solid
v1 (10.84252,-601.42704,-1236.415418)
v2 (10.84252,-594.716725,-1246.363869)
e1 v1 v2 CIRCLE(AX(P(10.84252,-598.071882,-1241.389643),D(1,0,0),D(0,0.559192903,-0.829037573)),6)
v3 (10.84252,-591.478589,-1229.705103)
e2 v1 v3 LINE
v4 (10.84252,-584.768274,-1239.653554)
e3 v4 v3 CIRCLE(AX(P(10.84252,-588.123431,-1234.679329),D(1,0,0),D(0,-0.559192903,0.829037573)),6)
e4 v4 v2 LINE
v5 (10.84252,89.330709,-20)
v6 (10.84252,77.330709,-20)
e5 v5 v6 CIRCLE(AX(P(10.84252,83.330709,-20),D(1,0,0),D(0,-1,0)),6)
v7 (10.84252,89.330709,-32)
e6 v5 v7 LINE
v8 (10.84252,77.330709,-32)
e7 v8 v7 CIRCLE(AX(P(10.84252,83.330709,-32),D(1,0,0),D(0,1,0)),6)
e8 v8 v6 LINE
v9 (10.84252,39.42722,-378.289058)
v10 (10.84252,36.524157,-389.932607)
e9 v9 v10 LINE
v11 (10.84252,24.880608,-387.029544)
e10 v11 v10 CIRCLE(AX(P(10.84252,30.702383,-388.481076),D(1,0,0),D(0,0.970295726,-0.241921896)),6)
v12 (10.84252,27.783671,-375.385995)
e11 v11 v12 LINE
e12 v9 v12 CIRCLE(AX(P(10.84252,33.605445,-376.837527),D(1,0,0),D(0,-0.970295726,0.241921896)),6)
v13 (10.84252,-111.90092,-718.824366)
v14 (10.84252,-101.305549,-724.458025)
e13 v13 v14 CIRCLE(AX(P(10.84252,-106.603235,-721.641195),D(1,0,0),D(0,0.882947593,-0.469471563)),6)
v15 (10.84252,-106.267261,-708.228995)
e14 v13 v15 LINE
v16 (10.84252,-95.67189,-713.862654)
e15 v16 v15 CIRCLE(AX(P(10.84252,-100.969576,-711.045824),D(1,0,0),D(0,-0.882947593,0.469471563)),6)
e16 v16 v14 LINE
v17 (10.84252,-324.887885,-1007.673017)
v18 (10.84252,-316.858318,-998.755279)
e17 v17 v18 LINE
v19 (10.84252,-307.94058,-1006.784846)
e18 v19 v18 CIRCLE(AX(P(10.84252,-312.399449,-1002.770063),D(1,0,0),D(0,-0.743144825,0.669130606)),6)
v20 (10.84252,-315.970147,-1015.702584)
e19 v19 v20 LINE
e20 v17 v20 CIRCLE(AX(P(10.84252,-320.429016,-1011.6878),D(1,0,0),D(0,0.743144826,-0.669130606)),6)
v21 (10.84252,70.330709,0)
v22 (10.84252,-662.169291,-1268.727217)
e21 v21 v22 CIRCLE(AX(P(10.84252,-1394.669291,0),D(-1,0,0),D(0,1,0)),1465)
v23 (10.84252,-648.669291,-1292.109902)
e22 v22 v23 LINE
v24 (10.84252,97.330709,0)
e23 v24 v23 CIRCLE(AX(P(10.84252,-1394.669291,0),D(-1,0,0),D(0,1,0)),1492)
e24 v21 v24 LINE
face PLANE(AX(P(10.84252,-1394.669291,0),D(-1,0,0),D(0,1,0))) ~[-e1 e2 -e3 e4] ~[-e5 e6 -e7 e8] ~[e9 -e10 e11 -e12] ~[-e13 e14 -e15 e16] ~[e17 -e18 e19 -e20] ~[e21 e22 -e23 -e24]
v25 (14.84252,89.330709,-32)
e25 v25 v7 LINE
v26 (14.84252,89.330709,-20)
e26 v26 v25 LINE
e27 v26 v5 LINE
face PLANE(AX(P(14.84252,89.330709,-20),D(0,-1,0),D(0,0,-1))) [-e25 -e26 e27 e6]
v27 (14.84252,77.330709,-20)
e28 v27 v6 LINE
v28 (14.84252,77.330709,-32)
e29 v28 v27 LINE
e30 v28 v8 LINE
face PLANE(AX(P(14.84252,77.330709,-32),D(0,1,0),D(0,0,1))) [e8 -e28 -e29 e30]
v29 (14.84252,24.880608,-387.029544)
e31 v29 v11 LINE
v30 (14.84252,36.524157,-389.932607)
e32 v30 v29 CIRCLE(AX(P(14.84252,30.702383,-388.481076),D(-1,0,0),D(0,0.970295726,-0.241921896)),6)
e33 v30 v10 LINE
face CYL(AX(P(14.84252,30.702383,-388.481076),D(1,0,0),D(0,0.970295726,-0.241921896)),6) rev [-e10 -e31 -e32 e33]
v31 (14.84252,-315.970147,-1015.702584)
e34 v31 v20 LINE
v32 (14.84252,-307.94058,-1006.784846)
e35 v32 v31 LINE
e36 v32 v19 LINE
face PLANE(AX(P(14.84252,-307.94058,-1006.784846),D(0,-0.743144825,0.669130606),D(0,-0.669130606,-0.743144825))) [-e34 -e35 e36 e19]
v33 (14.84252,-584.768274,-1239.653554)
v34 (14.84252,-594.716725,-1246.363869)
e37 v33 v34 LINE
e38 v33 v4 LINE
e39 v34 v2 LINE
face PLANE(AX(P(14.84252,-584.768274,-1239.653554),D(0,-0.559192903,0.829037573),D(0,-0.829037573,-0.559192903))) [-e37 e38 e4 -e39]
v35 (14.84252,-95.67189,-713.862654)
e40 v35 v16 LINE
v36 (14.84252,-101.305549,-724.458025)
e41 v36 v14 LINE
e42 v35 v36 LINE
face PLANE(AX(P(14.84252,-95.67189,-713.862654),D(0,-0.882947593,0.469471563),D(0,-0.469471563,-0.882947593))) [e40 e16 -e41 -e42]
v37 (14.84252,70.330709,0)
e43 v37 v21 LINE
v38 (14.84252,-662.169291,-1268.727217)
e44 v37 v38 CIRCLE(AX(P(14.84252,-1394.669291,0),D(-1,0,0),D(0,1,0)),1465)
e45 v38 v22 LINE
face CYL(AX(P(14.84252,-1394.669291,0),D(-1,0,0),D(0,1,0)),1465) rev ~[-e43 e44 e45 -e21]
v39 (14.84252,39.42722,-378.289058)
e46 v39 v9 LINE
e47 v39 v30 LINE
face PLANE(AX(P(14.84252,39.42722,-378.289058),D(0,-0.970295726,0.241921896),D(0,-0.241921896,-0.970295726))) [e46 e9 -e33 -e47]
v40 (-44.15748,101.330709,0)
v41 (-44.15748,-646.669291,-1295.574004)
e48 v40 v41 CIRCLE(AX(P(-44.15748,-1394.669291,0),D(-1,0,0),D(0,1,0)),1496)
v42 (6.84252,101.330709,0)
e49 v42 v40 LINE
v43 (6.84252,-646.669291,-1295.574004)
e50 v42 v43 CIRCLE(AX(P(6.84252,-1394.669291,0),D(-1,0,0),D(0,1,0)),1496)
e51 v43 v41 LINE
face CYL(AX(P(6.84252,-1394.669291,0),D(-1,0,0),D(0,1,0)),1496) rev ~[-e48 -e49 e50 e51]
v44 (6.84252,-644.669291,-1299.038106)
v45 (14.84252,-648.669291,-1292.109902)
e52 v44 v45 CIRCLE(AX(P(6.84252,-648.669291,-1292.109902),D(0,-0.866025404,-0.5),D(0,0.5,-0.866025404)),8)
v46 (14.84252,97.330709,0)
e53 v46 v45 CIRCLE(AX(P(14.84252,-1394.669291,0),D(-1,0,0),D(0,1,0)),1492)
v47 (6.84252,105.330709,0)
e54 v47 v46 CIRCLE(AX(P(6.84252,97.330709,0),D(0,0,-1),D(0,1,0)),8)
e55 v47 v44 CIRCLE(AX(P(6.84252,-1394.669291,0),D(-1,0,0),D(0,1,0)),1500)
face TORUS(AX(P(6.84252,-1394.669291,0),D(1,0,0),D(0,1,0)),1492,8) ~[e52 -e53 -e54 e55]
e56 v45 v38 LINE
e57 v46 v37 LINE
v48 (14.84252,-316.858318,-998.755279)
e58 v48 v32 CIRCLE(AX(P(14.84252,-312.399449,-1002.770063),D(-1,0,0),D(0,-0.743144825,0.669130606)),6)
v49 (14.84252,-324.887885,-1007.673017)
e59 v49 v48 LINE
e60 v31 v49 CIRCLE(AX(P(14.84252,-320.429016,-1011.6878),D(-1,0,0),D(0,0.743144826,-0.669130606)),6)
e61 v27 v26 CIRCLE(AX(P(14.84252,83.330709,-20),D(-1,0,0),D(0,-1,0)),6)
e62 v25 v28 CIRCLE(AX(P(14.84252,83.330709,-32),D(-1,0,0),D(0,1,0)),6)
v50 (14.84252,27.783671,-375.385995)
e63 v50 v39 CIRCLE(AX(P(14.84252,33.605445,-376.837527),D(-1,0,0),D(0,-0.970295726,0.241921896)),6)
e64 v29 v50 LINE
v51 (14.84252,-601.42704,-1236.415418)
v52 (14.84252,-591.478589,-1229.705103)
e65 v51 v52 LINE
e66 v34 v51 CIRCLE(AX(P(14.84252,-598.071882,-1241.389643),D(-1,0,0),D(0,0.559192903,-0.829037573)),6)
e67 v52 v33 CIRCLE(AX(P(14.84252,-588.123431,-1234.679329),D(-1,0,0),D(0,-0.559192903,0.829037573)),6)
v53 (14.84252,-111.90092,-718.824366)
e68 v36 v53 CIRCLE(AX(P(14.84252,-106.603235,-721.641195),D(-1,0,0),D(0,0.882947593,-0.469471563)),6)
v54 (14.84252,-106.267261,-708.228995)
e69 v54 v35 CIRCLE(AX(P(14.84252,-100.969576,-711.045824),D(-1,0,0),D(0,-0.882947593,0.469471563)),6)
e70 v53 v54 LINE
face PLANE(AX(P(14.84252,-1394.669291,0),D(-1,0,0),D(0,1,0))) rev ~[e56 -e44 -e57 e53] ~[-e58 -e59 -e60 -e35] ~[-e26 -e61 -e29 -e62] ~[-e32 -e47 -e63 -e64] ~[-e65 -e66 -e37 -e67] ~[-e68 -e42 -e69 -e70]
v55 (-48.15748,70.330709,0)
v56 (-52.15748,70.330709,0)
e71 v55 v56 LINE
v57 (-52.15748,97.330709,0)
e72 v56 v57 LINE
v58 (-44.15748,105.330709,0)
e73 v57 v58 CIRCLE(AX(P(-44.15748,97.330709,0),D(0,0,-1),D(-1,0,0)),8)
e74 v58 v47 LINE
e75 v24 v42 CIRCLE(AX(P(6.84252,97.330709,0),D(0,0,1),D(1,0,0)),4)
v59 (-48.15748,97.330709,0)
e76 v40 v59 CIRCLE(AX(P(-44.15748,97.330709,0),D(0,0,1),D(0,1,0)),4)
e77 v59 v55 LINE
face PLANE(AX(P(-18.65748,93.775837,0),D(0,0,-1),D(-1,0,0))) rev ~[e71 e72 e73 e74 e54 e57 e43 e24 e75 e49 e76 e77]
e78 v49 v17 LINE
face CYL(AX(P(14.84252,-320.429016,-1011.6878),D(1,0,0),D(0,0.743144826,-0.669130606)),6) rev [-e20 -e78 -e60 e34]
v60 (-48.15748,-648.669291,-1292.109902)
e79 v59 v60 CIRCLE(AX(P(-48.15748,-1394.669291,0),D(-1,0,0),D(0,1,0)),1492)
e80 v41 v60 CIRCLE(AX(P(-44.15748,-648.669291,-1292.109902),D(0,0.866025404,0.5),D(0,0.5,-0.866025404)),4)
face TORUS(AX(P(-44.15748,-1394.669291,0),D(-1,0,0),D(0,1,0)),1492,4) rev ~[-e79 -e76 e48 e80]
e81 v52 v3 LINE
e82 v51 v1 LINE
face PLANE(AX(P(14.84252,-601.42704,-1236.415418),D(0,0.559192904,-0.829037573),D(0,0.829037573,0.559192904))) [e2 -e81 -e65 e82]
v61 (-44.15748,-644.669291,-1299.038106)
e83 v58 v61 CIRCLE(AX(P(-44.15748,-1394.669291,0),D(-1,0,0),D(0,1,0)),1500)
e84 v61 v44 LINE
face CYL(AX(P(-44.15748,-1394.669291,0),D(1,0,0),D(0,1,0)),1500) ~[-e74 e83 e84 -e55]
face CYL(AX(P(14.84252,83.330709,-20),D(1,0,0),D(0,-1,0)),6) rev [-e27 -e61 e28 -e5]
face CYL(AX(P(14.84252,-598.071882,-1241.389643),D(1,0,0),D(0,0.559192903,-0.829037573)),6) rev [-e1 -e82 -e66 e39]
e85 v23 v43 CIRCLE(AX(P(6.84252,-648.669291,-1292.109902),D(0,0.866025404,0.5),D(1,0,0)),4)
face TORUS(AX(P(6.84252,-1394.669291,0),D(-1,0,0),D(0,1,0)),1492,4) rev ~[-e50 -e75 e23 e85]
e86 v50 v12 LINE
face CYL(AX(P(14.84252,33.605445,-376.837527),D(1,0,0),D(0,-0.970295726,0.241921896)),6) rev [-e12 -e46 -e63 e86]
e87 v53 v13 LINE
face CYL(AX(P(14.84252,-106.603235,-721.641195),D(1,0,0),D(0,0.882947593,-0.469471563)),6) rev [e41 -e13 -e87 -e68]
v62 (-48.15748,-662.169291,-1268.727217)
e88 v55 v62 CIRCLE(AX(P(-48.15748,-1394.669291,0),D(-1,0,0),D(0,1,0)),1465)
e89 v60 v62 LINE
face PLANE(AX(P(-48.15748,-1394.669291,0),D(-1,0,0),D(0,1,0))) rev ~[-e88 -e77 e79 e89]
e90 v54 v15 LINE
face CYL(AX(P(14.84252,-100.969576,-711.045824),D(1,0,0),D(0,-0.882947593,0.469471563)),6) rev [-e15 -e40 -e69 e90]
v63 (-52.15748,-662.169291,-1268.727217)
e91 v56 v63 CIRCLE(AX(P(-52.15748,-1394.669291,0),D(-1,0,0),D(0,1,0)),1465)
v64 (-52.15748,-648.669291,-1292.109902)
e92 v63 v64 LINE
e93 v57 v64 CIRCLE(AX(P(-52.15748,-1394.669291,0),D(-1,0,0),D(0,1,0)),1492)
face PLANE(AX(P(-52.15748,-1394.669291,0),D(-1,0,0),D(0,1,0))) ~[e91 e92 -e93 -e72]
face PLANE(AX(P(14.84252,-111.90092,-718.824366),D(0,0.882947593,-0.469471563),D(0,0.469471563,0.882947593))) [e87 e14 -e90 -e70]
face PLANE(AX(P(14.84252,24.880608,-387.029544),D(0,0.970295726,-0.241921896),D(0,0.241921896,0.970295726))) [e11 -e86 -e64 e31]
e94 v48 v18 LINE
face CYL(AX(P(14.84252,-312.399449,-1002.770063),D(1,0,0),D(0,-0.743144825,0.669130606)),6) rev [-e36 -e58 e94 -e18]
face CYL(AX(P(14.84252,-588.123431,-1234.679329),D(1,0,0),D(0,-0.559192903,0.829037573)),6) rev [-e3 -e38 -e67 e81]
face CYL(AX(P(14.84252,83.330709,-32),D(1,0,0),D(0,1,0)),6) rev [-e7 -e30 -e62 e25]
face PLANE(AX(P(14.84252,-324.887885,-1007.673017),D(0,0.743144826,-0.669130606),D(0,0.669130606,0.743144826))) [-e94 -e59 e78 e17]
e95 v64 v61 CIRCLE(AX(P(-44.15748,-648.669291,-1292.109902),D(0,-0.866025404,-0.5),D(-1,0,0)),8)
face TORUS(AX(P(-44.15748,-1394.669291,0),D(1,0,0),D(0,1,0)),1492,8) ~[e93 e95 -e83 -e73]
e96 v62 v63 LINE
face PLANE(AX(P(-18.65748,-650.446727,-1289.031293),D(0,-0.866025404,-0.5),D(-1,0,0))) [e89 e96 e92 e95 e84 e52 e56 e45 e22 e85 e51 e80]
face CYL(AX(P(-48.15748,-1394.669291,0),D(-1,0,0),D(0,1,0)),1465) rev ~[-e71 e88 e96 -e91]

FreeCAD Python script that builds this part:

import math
import FreeCAD as App
import Part
import Sketcher
from FreeCAD import Vector
Q = App.Units.Quantity

doc = App.newDocument("Part")
params = doc.addObject("Spreadsheet::Sheet", "Params")
for row, (alias, value) in enumerate([
    ("sketch1_radius", "8 mm"),
    ("sketch1_radius2", "4 mm"),
    ("sketch1_width", "51 mm"),
    ("sketch1_height", "27 mm"),
    ("revolution_angle", "60 deg"),
    ("sketch2_radius", "6 mm"),
    ("sketch2_height", "12 mm"),
    ("sketch2_length", "12 mm"),
    ("pocket1_length", "10 mm"),
], start=1):
    params.set(f"A{row}", alias)
    params.set(f"B{row}", "=" + value)
    params.setAlias(f"B{row}", alias)

body = doc.addObject("PartDesign::Body", "Body")

sketch1 = body.newObject("Sketcher::SketchObject", "Sketch")
sketch1.AttachmentSupport = (doc.getObject("XY_Plane"), [""])
sketch1.MapMode = "FlatFace"
sketch1.addGeometry(Part.ArcOfCircle(Part.Circle(Vector(-44.2, 97.3, 0), Vector(0, 0, 1), 8), math.radians(90), math.radians(180)), False)
sketch1.addGeometry(Part.LineSegment(Vector(-52.2, 97.3, 0), Vector(-52.2, 70.3, 0)), False)
sketch1.addGeometry(Part.LineSegment(Vector(-52.2, 70.3, 0), Vector(-48.2, 70.3, 0)), False)
sketch1.addGeometry(Part.LineSegment(Vector(-48.2, 70.3, 0), Vector(-48.2, 97.3, 0)), False)
sketch1.addGeometry(Part.ArcOfCircle(Part.Circle(Vector(-44.2, 97.3, 0), Vector(0, 0, 1), 4), math.radians(90), math.radians(180)), False)
sketch1.addGeometry(Part.LineSegment(Vector(-44.2, 101.3, 0), Vector(6.8, 101.3, 0)), False)
sketch1.addGeometry(Part.ArcOfCircle(Part.Circle(Vector(6.8, 97.3, 0), Vector(0, 0, 1), 4), math.radians(0), math.radians(90)), False)
sketch1.addGeometry(Part.LineSegment(Vector(10.8, 97.3, 0), Vector(10.8, 70.3, 0)), False)
sketch1.addGeometry(Part.LineSegment(Vector(10.8, 70.3, 0), Vector(14.8, 70.3, 0)), False)
sketch1.addGeometry(Part.LineSegment(Vector(14.8, 70.3, 0), Vector(14.8, 97.3, 0)), False)
sketch1.addGeometry(Part.ArcOfCircle(Part.Circle(Vector(6.8, 97.3, 0), Vector(0, 0, 1), 8), math.radians(0), math.radians(90)), False)
sketch1.addGeometry(Part.LineSegment(Vector(6.8, 105.3, 0), Vector(-44.2, 105.3, 0)), False)
sketch1.addGeometry(Part.LineSegment(Vector(14.8, -1394.7, 0), Vector(-52.2, -1394.7, 0)), True)
sketch1.addConstraint(Sketcher.Constraint("Tangent", 0, 2, 1, 1))
sketch1.addConstraint(Sketcher.Constraint("Coincident", 1, 2, 2, 1))
sketch1.addConstraint(Sketcher.Constraint("Coincident", 2, 2, 3, 1))
sketch1.addConstraint(Sketcher.Constraint("Tangent", 3, 2, 4, 2))
sketch1.addConstraint(Sketcher.Constraint("Tangent", 4, 1, 5, 1))
sketch1.addConstraint(Sketcher.Constraint("Tangent", 5, 2, 6, 2))
sketch1.addConstraint(Sketcher.Constraint("Tangent", 6, 1, 7, 1))
sketch1.addConstraint(Sketcher.Constraint("Coincident", 7, 2, 8, 1))
sketch1.addConstraint(Sketcher.Constraint("Coincident", 8, 2, 9, 1))
sketch1.addConstraint(Sketcher.Constraint("Tangent", 9, 2, 10, 1))
sketch1.addConstraint(Sketcher.Constraint("Tangent", 10, 2, 11, 1))
sketch1.addConstraint(Sketcher.Constraint("Tangent", 11, 2, 0, 1))
sketch1.addConstraint(Sketcher.Constraint("Vertical", 1))
sketch1.addConstraint(Sketcher.Constraint("Horizontal", 2))
sketch1.addConstraint(Sketcher.Constraint("Vertical", 3))
sketch1.addConstraint(Sketcher.Constraint("Horizontal", 5))
sketch1.addConstraint(Sketcher.Constraint("Vertical", 7))
sketch1.addConstraint(Sketcher.Constraint("Horizontal", 8))
sketch1.addConstraint(Sketcher.Constraint("Vertical", 9))
sketch1.addConstraint(Sketcher.Constraint("Horizontal", 11))
sketch1.addConstraint(Sketcher.Constraint("Horizontal", 12))
sketch1.addConstraint(Sketcher.Constraint("Coincident", 4, 3, 0, 3))
sketch1.addConstraint(Sketcher.Constraint("Coincident", 10, 3, 6, 3))
sketch1.addConstraint(Sketcher.Constraint("Equal", 4, 6))
sketch1.addConstraint(Sketcher.Constraint("Horizontal", 2, 2, 7, 2))
sketch1.addConstraint(Sketcher.Constraint("Vertical", 9, 2, 12, 1))
sketch1.addConstraint(Sketcher.Constraint("Vertical", 1, 2, 12, 2))
sketch1.addConstraint(Sketcher.Constraint("Radius", 0, Q("8 mm")))
sketch1.addConstraint(Sketcher.Constraint("Radius", 4, Q("4 mm")))
sketch1.addConstraint(Sketcher.Constraint("DistanceX", 5, 1, 5, 2, Q("51 mm")))
sketch1.addConstraint(Sketcher.Constraint("DistanceY", 1, 2, 1, 1, Q("27 mm")))
sketch1.addConstraint(Sketcher.Constraint("DistanceY", 12, 1, 8, 2, Q("1465 mm")))
sketch1.addConstraint(Sketcher.Constraint("DistanceX", 0, 3, -1, 1, Q("44.15748 mm")))
sketch1.addConstraint(Sketcher.Constraint("DistanceY", -1, 1, 0, 3, Q("97.330709 mm")))
sketch1.setExpression("Constraints[27]", "Params.sketch1_radius")
sketch1.setExpression("Constraints[28]", "Params.sketch1_radius2")
sketch1.setExpression("Constraints[29]", "Params.sketch1_width")
sketch1.setExpression("Constraints[30]", "Params.sketch1_height")
revolution = body.newObject("PartDesign::Revolution", "Revolution")
revolution.Profile = sketch1
revolution.ReferenceAxis = (sketch1, ["Axis0"])
revolution.setExpression("Angle", "Params.revolution_angle")

sketch2 = body.newObject("Sketcher::SketchObject", "Sketch001")
sketch2.AttachmentSupport = (doc.getObject("YZ_Plane"), [""])
sketch2.MapMode = "FlatFace"
sketch2.AttachmentOffset = App.Placement(Vector(0, 0, 14.84252), App.Rotation())
sketch2.addGeometry(Part.LineSegment(Vector(89, -32, 0), Vector(89, -20, 0)), False)
sketch2.addGeometry(Part.ArcOfCircle(Part.Circle(Vector(83, -20, 0), Vector(0, 0, 1), 6), math.radians(0), math.radians(180)), False)
sketch2.addGeometry(Part.LineSegment(Vector(77, -20, 0), Vector(77, -32, 0)), False)
sketch2.addGeometry(Part.ArcOfCircle(Part.Circle(Vector(83, -32, 0), Vector(0, 0, 1), 6), math.radians(180), math.radians(360)), False)
sketch2.addGeometry(Part.LineSegment(Vector(37, -390, 0), Vector(39, -378, 0)), False)
sketch2.addGeometry(Part.ArcOfCircle(Part.Circle(Vector(34, -377, 0), Vector(0, 0, 1), 6), math.radians(-14), math.radians(166)), False)
sketch2.addGeometry(Part.LineSegment(Vector(28, -375, 0), Vector(25, -387, 0)), False)
sketch2.addGeometry(Part.ArcOfCircle(Part.Circle(Vector(31, -388, 0), Vector(0, 0, 1), 6), math.radians(166), math.radians(346)), False)
sketch2.addGeometry(Part.LineSegment(Vector(-101, -724, 0), Vector(-96, -714, 0)), False)
sketch2.addGeometry(Part.ArcOfCircle(Part.Circle(Vector(-101, -711, 0), Vector(0, 0, 1), 6), math.radians(-28), math.radians(152)), False)
sketch2.addGeometry(Part.LineSegment(Vector(-106, -708, 0), Vector(-112, -719, 0)), False)
sketch2.addGeometry(Part.ArcOfCircle(Part.Circle(Vector(-107, -722, 0), Vector(0, 0, 1), 6), math.radians(152), math.radians(332)), False)
sketch2.addGeometry(Part.LineSegment(Vector(-316, -1016, 0), Vector(-308, -1007, 0)), False)
sketch2.addGeometry(Part.ArcOfCircle(Part.Circle(Vector(-312, -1003, 0), Vector(0, 0, 1), 6), math.radians(-42), math.radians(138)), False)
sketch2.addGeometry(Part.LineSegment(Vector(-317, -999, 0), Vector(-325, -1008, 0)), False)
sketch2.addGeometry(Part.ArcOfCircle(Part.Circle(Vector(-320, -1012, 0), Vector(0, 0, 1), 6), math.radians(138), math.radians(318)), False)
sketch2.addGeometry(Part.LineSegment(Vector(-595, -1246, 0), Vector(-585, -1240, 0)), False)
sketch2.addGeometry(Part.ArcOfCircle(Part.Circle(Vector(-588, -1235, 0), Vector(0, 0, 1), 6), math.radians(-56), math.radians(124)), False)
sketch2.addGeometry(Part.LineSegment(Vector(-591, -1230, 0), Vector(-601, -1236, 0)), False)
sketch2.addGeometry(Part.ArcOfCircle(Part.Circle(Vector(-598, -1241, 0), Vector(0, 0, 1), 6), math.radians(124), math.radians(304)), False)
sketch2.addGeometry(Part.LineSegment(Vector(-921, -1403, 0), Vector(-910, -1399, 0)), False)
sketch2.addGeometry(Part.ArcOfCircle(Part.Circle(Vector(-912, -1393, 0), Vector(0, 0, 1), 6), math.radians(-70), math.radians(110)), False)
sketch2.addGeometry(Part.LineSegment(Vector(-914, -1387, 0), Vector(-925, -1391, 0)), False)
sketch2.addGeometry(Part.ArcOfCircle(Part.Circle(Vector(-923, -1397, 0), Vector(0, 0, 1), 6), math.radians(110), math.radians(290)), False)
sketch2.addConstraint(Sketcher.Constraint("Tangent", 0, 2, 1, 1))
sketch2.addConstraint(Sketcher.Constraint("Tangent", 1, 2, 2, 1))
sketch2.addConstraint(Sketcher.Constraint("Tangent", 2, 2, 3, 1))
sketch2.addConstraint(Sketcher.Constraint("Tangent", 3, 2, 0, 1))
sketch2.addConstraint(Sketcher.Constraint("Tangent", 4, 2, 5, 1))
sketch2.addConstraint(Sketcher.Constraint("Tangent", 5, 2, 6, 1))
sketch2.addConstraint(Sketcher.Constraint("Tangent", 6, 2, 7, 1))
sketch2.addConstraint(Sketcher.Constraint("Tangent", 7, 2, 4, 1))
sketch2.addConstraint(Sketcher.Constraint("Tangent", 8, 2, 9, 1))
sketch2.addConstraint(Sketcher.Constraint("Tangent", 9, 2, 10, 1))
sketch2.addConstraint(Sketcher.Constraint("Tangent", 10, 2, 11, 1))
sketch2.addConstraint(Sketcher.Constraint("Tangent", 11, 2, 8, 1))
sketch2.addConstraint(Sketcher.Constraint("Tangent", 12, 2, 13, 1))
sketch2.addConstraint(Sketcher.Constraint("Tangent", 13, 2, 14, 1))
sketch2.addConstraint(Sketcher.Constraint("Tangent", 14, 2, 15, 1))
sketch2.addConstraint(Sketcher.Constraint("Tangent", 15, 2, 12, 1))
sketch2.addConstraint(Sketcher.Constraint("Tangent", 16, 2, 17, 1))
sketch2.addConstraint(Sketcher.Constraint("Tangent", 17, 2, 18, 1))
sketch2.addConstraint(Sketcher.Constraint("Tangent", 18, 2, 19, 1))
sketch2.addConstraint(Sketcher.Constraint("Tangent", 19, 2, 16, 1))
sketch2.addConstraint(Sketcher.Constraint("Tangent", 20, 2, 21, 1))
sketch2.addConstraint(Sketcher.Constraint("Tangent", 21, 2, 22, 1))
sketch2.addConstraint(Sketcher.Constraint("Tangent", 22, 2, 23, 1))
sketch2.addConstraint(Sketcher.Constraint("Tangent", 23, 2, 20, 1))
sketch2.addConstraint(Sketcher.Constraint("Vertical", 0))
sketch2.addConstraint(Sketcher.Constraint("Vertical", 2))
sketch2.addConstraint(Sketcher.Constraint("Equal", 3, 5))
sketch2.addConstraint(Sketcher.Constraint("Equal", 5, 7))
sketch2.addConstraint(Sketcher.Constraint("Equal", 7, 9))
sketch2.addConstraint(Sketcher.Constraint("Equal", 9, 11))
sketch2.addConstraint(Sketcher.Constraint("Equal", 11, 13))
sketch2.addConstraint(Sketcher.Constraint("Equal", 13, 15))
sketch2.addConstraint(Sketcher.Constraint("Equal", 15, 17))
sketch2.addConstraint(Sketcher.Constraint("Equal", 17, 19))
sketch2.addConstraint(Sketcher.Constraint("Equal", 19, 21))
sketch2.addConstraint(Sketcher.Constraint("Equal", 21, 23))
sketch2.addConstraint(Sketcher.Constraint("Equal", 6, 8))
sketch2.addConstraint(Sketcher.Constraint("Equal", 10, 12))
sketch2.addConstraint(Sketcher.Constraint("Equal", 14, 16))
sketch2.addConstraint(Sketcher.Constraint("Equal", 18, 20))
sketch2.addConstraint(Sketcher.Constraint("Radius", 1, Q("6 mm")))
sketch2.addConstraint(Sketcher.Constraint("DistanceY", 0, 1, 0, 2, Q("12 mm")))
sketch2.addConstraint(Sketcher.Constraint("Angle", 4, Q("76 deg")))
sketch2.addConstraint(Sketcher.Constraint("Angle", 8, Q("62 deg")))
sketch2.addConstraint(Sketcher.Constraint("Angle", 12, Q("48 deg")))
sketch2.addConstraint(Sketcher.Constraint("Angle", 16, Q("34 deg")))
sketch2.addConstraint(Sketcher.Constraint("Angle", 20, Q("20 deg")))
sketch2.addConstraint(Sketcher.Constraint("Distance", 4, Q("12 mm")))
sketch2.addConstraint(Sketcher.Constraint("DistanceY", 1, 3, -1, 1, Q("20 mm")))
sketch2.addConstraint(Sketcher.Constraint("DistanceY", 15, 3, -1, 1, Q("1011.6878 mm")))
sketch2.addConstraint(Sketcher.Constraint("DistanceX", 15, 3, 7, 3, Q("351.131399 mm")))
sketch2.addConstraint(Sketcher.Constraint("DistanceY", 21, 3, 17, 3, Q("158.316901 mm")))
sketch2.addConstraint(Sketcher.Constraint("DistanceX", 8, 2, 6, 2, Q("120.552499 mm")))
sketch2.addConstraint(Sketcher.Constraint("DistanceX", 21, 2, 19, 3, Q("315.741401 mm")))
sketch2.addConstraint(Sketcher.Constraint("DistanceX", -1, 1, 1, 3, Q("83.330709 mm")))
sketch2.addConstraint(Sketcher.Constraint("DistanceX", 13, 3, -1, 1, Q("312.399449 mm")))
sketch2.addConstraint(Sketcher.Constraint("DistanceX", 17, 3, -1, 1, Q("588.123431 mm")))
sketch2.addConstraint(Sketcher.Constraint("DistanceY", 17, 3, -1, 1, Q("1234.679329 mm")))
sketch2.addConstraint(Sketcher.Constraint("DistanceY", 4, 2, -1, 1, Q("378.289058 mm")))
sketch2.addConstraint(Sketcher.Constraint("DistanceY", 9, 3, 7, 3, Q("322.564749 mm")))
sketch2.setExpression("Constraints[40]", "Params.sketch2_radius")
sketch2.setExpression("Constraints[41]", "Params.sketch2_height")
sketch2.setExpression("Constraints[47]", "Params.sketch2_length")
pocket1 = body.newObject("PartDesign::Pocket", "Pocket")
pocket1.Profile = sketch2
pocket1.setExpression("Length", "Params.pocket1_length")

doc.recompute()
